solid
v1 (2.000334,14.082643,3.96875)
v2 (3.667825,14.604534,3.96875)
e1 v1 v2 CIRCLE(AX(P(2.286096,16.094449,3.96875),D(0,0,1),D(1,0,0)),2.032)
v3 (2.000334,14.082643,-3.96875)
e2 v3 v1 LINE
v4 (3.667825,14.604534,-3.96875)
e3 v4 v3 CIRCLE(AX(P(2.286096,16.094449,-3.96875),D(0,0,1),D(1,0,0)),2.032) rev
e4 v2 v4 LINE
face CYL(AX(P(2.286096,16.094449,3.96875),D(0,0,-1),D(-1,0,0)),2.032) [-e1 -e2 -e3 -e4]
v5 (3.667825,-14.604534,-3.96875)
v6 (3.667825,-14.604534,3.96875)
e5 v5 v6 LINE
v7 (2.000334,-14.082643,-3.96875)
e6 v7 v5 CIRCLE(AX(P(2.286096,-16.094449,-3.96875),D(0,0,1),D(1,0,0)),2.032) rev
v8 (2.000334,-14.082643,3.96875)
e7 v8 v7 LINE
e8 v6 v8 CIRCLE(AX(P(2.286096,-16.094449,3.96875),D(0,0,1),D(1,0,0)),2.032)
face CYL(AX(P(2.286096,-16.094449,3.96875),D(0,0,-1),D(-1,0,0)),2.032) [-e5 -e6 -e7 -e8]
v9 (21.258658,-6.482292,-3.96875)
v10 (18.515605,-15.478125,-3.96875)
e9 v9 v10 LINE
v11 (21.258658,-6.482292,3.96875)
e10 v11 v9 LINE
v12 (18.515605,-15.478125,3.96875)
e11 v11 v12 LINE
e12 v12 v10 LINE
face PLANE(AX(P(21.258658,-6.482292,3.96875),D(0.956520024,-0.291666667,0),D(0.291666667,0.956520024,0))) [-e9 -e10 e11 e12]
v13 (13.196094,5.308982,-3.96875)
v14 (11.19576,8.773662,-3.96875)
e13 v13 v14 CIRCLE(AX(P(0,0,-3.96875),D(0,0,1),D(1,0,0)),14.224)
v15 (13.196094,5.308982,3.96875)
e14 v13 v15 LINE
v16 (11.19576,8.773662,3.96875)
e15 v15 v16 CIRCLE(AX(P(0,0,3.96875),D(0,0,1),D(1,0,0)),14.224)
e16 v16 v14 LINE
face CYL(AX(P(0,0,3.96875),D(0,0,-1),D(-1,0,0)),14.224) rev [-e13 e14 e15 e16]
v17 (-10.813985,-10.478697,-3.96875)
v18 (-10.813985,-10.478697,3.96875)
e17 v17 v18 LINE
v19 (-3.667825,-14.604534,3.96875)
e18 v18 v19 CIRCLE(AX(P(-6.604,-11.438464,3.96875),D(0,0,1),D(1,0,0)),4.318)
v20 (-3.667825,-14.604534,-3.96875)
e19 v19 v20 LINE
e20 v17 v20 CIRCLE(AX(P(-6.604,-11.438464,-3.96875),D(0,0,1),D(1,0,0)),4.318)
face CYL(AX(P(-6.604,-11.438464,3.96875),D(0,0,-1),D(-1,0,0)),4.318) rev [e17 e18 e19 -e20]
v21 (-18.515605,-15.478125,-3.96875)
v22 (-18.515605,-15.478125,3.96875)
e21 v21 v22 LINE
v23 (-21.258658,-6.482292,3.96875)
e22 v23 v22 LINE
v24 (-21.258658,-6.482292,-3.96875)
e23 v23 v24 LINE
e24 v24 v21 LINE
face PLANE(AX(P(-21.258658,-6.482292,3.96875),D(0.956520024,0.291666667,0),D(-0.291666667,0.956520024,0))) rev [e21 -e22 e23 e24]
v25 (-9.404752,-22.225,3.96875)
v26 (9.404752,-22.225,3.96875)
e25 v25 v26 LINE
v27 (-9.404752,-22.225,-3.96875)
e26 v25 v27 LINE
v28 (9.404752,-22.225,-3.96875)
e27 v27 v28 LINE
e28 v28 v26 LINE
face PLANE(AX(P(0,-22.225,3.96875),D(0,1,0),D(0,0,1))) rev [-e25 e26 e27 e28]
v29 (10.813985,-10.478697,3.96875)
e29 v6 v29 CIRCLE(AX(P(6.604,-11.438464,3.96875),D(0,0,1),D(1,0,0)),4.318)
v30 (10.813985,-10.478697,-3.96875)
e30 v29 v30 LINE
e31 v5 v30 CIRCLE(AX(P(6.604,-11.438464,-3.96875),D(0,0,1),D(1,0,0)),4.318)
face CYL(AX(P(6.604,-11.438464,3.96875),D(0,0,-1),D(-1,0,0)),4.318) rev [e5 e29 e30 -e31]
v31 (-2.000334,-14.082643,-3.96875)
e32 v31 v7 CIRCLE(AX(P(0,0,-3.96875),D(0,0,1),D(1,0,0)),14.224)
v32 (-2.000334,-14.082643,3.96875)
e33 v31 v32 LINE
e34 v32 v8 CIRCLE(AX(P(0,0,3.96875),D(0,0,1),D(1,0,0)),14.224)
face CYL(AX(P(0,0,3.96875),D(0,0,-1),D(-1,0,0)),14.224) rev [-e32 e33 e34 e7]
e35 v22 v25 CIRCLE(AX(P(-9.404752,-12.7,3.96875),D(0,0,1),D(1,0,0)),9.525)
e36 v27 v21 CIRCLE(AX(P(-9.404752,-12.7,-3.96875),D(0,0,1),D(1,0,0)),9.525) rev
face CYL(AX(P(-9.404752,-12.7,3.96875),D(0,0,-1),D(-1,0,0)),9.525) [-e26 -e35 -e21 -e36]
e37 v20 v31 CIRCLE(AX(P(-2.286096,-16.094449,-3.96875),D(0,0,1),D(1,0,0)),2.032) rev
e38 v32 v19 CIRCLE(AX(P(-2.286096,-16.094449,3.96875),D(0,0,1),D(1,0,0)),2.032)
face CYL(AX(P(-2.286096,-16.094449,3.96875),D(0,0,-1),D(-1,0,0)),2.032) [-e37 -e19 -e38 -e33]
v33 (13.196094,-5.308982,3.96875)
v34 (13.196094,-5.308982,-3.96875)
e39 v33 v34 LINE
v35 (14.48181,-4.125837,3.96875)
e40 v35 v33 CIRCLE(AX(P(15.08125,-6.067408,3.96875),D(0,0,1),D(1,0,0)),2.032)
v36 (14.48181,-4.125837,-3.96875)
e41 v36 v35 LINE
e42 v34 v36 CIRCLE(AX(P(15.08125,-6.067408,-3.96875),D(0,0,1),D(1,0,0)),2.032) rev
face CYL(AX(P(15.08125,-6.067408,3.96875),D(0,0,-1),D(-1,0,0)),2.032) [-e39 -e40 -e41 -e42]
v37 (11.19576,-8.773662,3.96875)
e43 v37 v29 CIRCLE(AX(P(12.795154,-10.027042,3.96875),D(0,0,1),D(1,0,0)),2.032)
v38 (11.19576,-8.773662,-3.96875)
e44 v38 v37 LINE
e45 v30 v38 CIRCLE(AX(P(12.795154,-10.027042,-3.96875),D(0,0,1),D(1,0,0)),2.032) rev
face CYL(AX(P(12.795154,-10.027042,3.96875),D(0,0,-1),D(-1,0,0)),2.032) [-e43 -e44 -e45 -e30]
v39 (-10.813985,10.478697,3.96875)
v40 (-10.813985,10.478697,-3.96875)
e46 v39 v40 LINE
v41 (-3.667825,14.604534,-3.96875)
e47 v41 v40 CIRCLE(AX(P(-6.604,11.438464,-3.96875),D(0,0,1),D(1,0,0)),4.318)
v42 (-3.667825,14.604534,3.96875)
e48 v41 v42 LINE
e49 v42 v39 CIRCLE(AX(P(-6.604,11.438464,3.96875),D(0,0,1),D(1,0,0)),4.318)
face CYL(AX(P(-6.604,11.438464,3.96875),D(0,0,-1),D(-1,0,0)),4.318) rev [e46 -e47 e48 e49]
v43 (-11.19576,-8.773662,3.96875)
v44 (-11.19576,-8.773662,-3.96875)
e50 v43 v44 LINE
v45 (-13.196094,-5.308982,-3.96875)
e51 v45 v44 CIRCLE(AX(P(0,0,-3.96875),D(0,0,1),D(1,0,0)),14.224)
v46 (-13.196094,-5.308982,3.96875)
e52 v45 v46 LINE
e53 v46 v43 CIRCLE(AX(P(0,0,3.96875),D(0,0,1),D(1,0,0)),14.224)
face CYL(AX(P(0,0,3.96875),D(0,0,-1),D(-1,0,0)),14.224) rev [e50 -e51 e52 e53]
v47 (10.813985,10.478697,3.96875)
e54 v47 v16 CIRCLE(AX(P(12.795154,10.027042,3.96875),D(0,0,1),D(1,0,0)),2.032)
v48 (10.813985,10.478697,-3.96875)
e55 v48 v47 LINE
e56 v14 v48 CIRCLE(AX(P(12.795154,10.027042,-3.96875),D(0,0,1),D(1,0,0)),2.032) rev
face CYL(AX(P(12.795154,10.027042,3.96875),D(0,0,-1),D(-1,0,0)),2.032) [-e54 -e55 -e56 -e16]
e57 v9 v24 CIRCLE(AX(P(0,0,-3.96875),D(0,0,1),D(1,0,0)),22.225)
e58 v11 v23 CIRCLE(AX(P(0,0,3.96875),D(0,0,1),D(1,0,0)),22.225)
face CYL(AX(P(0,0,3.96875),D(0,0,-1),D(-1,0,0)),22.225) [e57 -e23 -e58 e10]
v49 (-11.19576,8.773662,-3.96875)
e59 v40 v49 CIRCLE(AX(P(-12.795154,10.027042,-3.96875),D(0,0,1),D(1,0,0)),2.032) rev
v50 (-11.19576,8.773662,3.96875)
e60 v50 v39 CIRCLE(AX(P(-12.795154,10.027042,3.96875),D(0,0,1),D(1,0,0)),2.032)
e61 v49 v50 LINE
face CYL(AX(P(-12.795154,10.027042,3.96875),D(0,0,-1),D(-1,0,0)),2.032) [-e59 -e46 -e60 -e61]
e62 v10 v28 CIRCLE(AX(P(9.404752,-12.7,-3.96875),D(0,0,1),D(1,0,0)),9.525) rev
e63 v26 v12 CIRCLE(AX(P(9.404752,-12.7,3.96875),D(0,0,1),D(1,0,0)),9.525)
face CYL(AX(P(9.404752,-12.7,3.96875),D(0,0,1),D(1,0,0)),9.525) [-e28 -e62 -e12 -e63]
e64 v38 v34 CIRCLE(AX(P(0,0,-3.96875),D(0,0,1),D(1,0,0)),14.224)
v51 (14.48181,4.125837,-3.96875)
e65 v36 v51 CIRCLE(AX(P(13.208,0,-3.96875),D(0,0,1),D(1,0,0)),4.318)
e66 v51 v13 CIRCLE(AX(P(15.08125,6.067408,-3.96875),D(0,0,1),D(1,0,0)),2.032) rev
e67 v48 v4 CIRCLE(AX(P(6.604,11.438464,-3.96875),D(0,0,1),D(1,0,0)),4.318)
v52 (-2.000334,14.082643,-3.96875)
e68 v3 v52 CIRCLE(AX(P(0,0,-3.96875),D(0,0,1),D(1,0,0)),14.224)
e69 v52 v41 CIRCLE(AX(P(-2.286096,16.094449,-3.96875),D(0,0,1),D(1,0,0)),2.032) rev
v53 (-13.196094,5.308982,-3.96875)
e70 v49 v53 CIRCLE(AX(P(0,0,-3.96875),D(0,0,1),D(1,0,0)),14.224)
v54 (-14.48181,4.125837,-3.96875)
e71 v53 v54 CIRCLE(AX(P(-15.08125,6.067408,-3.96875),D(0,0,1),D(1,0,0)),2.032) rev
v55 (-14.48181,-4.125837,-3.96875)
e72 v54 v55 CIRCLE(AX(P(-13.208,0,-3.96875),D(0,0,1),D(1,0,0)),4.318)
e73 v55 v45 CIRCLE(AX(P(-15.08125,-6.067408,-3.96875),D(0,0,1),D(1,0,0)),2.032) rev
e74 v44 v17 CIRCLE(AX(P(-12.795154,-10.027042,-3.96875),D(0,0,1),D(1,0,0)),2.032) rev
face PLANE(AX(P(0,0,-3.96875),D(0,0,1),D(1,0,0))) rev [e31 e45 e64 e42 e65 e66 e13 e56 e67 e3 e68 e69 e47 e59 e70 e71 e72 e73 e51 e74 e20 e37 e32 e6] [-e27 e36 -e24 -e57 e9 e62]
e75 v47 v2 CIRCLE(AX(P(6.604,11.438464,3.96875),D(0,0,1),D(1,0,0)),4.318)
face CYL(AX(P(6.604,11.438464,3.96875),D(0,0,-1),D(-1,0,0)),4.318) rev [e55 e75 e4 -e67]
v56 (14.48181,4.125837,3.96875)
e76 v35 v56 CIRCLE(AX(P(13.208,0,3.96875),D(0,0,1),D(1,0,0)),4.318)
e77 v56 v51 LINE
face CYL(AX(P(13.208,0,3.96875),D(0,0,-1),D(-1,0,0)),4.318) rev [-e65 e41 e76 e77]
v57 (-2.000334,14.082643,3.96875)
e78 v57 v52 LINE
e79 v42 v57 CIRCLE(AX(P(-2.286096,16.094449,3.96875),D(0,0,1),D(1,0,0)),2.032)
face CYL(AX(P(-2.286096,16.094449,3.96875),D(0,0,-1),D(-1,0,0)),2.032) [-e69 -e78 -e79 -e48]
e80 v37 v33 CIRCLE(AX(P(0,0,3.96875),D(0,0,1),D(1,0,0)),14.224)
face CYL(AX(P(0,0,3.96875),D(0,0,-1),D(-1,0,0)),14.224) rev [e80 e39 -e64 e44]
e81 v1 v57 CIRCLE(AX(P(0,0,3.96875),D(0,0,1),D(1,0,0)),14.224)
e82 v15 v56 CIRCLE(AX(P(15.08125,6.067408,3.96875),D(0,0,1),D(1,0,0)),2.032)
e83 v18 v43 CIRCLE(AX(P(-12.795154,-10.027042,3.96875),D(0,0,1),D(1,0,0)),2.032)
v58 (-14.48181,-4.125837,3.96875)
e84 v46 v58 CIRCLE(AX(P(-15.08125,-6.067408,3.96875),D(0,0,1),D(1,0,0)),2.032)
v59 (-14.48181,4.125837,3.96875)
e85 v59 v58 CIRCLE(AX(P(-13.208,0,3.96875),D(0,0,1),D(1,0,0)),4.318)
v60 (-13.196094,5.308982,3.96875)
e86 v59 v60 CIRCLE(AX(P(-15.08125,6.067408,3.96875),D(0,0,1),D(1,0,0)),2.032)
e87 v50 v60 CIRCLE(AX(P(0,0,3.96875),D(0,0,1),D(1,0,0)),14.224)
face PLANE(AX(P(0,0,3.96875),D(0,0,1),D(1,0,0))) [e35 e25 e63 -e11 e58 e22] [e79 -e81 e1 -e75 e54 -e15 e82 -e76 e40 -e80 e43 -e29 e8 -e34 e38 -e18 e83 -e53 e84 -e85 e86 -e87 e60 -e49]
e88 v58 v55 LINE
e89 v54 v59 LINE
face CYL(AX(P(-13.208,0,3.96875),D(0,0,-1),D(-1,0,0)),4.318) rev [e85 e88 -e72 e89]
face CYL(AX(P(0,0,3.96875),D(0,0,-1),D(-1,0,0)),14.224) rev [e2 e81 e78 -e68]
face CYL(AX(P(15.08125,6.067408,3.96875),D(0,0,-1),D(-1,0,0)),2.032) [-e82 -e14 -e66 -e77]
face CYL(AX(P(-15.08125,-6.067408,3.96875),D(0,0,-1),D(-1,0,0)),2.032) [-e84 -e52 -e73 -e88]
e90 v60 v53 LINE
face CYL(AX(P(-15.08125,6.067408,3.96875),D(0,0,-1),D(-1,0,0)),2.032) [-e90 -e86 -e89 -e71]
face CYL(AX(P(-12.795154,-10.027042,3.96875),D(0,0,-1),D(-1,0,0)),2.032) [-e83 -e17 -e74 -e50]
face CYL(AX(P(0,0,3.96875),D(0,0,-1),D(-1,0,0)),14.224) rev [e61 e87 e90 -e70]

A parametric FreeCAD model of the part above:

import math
import FreeCAD as App
import Part
import Sketcher
from FreeCAD import Vector
Q = App.Units.Quantity


def edges_at(feature, points):
    """Names of the edges that pass closest to the given points."""
    edges = feature.Shape.Edges
    near = lambda p: min(range(len(edges)), key=lambda i: edges[i].distToShape(Part.Vertex(*p))[0])
    return sorted({f"Edge{near(p) + 1}" for p in points})

doc = App.newDocument("Part")
body = doc.addObject("PartDesign::Body", "Body")

# Sketch on XY plane
sketch1 = body.newObject("Sketcher::SketchObject", "Sketch")
sketch1.AttachmentSupport = (doc.getObject("XY_Plane"), [""])
sketch1.MapMode = "FlatFace"
sketch1.addGeometry([
    Part.LineSegment(Vector(-21.3, -6.5, 0), Vector(-16.5, -22.2, 0)),  # 0
    Part.LineSegment(Vector(-16.5, -22.2, 0), Vector(16.5, -22.2, 0)),  # 1
    Part.LineSegment(Vector(16.5, -22.2, 0), Vector(21.3, -6.5, 0)),  # 2
    Part.ArcOfCircle(Part.Circle(Vector(0, 0, 0), Vector(0, 0, 1), 22.2), math.radians(-17), math.radians(197)),  # 3
    Part.ArcOfCircle(Part.Circle(Vector(0, 0, 0), Vector(0, 0, 1), 14.2), math.radians(18), math.radians(42)),  # 4
    Part.ArcOfCircle(Part.Circle(Vector(13.2, 0, 0), Vector(0, 0, 1), 4.3), math.radians(-85), math.radians(85)),  # 5
    Part.ArcOfCircle(Part.Circle(Vector(0, 0, 0), Vector(0, 0, 1), 14.2), math.radians(-42), math.radians(-18)),  # 6
    Part.ArcOfCircle(Part.Circle(Vector(6.6, -11.4, 0), Vector(0, 0, 1), 4.3), math.radians(-145), math.radians(25)),  # 7
    Part.ArcOfCircle(Part.Circle(Vector(0, 0, 0), Vector(0, 0, 1), 14.2), math.radians(-102), math.radians(-78)),  # 8
    Part.ArcOfCircle(Part.Circle(Vector(-6.6, -11.4, 0), Vector(0, 0, 1), 4.3), math.radians(155), math.radians(325)),  # 9
    Part.ArcOfCircle(Part.Circle(Vector(0, 0, 0), Vector(0, 0, 1), 14.2), math.radians(-162), math.radians(-138)),  # 10
    Part.ArcOfCircle(Part.Circle(Vector(-13.2, 0, 0), Vector(0, 0, 1), 4.3), math.radians(95), math.radians(265)),  # 11
    Part.ArcOfCircle(Part.Circle(Vector(0, 0, 0), Vector(0, 0, 1), 14.2), math.radians(138), math.radians(162)),  # 12
    Part.ArcOfCircle(Part.Circle(Vector(-6.6, 11.4, 0), Vector(0, 0, 1), 4.3), math.radians(35), math.radians(205)),  # 13
    Part.ArcOfCircle(Part.Circle(Vector(0, 0, 0), Vector(0, 0, 1), 14.2), math.radians(78), math.radians(102)),  # 14
    Part.ArcOfCircle(Part.Circle(Vector(6.6, 11.4, 0), Vector(0, 0, 1), 4.3), math.radians(-25), math.radians(145)),  # 15
], False)
sketch1.addConstraint([
    Sketcher.Constraint("Coincident", 0, 2, 1, 1),
    Sketcher.Constraint("Coincident", 1, 2, 2, 1),
    Sketcher.Constraint("Tangent", 2, 2, 3, 1),
    Sketcher.Constraint("Tangent", 3, 2, 0, 1),
    Sketcher.Constraint("Coincident", 4, 1, 5, 2),
    Sketcher.Constraint("Coincident", 5, 1, 6, 2),
    Sketcher.Constraint("Coincident", 6, 1, 7, 2),
    Sketcher.Constraint("Coincident", 7, 1, 8, 2),
    Sketcher.Constraint("Coincident", 8, 1, 9, 2),
    Sketcher.Constraint("Coincident", 9, 1, 10, 2),
    Sketcher.Constraint("Coincident", 10, 1, 11, 2),
    Sketcher.Constraint("Coincident", 11, 1, 12, 2),
    Sketcher.Constraint("Coincident", 12, 1, 13, 2),
    Sketcher.Constraint("Coincident", 13, 1, 14, 2),
    Sketcher.Constraint("Coincident", 14, 1, 15, 2),
    Sketcher.Constraint("Coincident", 15, 1, 4, 2),
    Sketcher.Constraint("Horizontal", 1),
    Sketcher.Constraint("Coincident", 3, 3, -1, 1),
    Sketcher.Constraint("Coincident", 4, 3, -1, 1),
    Sketcher.Constraint("Coincident", 6, 3, -1, 1),
    Sketcher.Constraint("Coincident", 8, 3, -1, 1),
    Sketcher.Constraint("Coincident", 10, 3, -1, 1),
    Sketcher.Constraint("Coincident", 12, 3, -1, 1),
    Sketcher.Constraint("Coincident", 14, 3, -1, 1),
    Sketcher.Constraint("Equal", 4, 6),
    Sketcher.Constraint("Equal", 5, 7),
    Sketcher.Constraint("Equal", 6, 8),
    Sketcher.Constraint("Equal", 7, 9),
    Sketcher.Constraint("Equal", 8, 10),
    Sketcher.Constraint("Equal", 9, 11),
    Sketcher.Constraint("Equal", 10, 12),
    Sketcher.Constraint("Equal", 11, 13),
    Sketcher.Constraint("Equal", 12, 14),
    Sketcher.Constraint("Equal", 13, 15),
    Sketcher.Constraint("Symmetric", 5, 3, 11, 3, -1, 1),
    Sketcher.Constraint("Symmetric", 7, 3, 13, 3, -1, 1),
    Sketcher.Constraint("Symmetric", 9, 3, 15, 3, -1, 1),
    Sketcher.Constraint("Symmetric", 7, 3, 9, 3, -2),
    Sketcher.Constraint("PointOnObject", 5, 3, -1),
    Sketcher.Constraint("Horizontal", 2, 2, 3, 2),
    Sketcher.Constraint("Radius", 4, Q("0.56 in")),
    Sketcher.Constraint("Radius", 5, Q("0.17 in")),
    Sketcher.Constraint("Radius", 3, Q("0.875 in")),
    Sketcher.Constraint("DistanceX", -1, 1, 5, 3, Q("0.52 in")),
    Sketcher.Constraint("DistanceX", -1, 1, 7, 3, Q("0.26 in")),
    Sketcher.Constraint("DistanceY", 0, 2, -1, 1, Q("0.875 in")),
    Sketcher.Constraint("DistanceX", 1, 1, 1, 2, 32.916631),
    Sketcher.Constraint("DistanceX", -1, 1, 6, 1, 10.505871),
])
pad1 = body.newObject("PartDesign::Pad", "Pad")
pad1.Profile = sketch1
pad1.Length = Q("0.3125 in")
pad1.Midplane = True
doc.recompute()

fillet = body.newObject("PartDesign::Fillet", "Fillet")
fillet.Base = (pad1, edges_at(pad1, [
    (-13.557, -4.304, 0),
    (-10.506, -9.589, 0),
    (-3.051, -13.893, 0),
    (3.051, -13.893, 0),
    (10.506, -9.589, 0),
    (13.557, -4.304, 0),
    (13.557, 4.304, 0),
    (10.506, 9.589, 0),
    (3.051, 13.893, 0),
    (-3.051, 13.893, 0),
    (-10.506, 9.589, 0),
    (-13.557, 4.304, 0),
]))
fillet.Radius = Q("0.08 in")
doc.recompute()

fillet2 = body.newObject("PartDesign::Fillet", "Fillet001")
fillet2.Base = (fillet, edges_at(fillet, [(16.458, -22.225, 0), (-16.458, -22.225, 0)]))
fillet2.Radius = Q("0.375 in")

doc.recompute()
